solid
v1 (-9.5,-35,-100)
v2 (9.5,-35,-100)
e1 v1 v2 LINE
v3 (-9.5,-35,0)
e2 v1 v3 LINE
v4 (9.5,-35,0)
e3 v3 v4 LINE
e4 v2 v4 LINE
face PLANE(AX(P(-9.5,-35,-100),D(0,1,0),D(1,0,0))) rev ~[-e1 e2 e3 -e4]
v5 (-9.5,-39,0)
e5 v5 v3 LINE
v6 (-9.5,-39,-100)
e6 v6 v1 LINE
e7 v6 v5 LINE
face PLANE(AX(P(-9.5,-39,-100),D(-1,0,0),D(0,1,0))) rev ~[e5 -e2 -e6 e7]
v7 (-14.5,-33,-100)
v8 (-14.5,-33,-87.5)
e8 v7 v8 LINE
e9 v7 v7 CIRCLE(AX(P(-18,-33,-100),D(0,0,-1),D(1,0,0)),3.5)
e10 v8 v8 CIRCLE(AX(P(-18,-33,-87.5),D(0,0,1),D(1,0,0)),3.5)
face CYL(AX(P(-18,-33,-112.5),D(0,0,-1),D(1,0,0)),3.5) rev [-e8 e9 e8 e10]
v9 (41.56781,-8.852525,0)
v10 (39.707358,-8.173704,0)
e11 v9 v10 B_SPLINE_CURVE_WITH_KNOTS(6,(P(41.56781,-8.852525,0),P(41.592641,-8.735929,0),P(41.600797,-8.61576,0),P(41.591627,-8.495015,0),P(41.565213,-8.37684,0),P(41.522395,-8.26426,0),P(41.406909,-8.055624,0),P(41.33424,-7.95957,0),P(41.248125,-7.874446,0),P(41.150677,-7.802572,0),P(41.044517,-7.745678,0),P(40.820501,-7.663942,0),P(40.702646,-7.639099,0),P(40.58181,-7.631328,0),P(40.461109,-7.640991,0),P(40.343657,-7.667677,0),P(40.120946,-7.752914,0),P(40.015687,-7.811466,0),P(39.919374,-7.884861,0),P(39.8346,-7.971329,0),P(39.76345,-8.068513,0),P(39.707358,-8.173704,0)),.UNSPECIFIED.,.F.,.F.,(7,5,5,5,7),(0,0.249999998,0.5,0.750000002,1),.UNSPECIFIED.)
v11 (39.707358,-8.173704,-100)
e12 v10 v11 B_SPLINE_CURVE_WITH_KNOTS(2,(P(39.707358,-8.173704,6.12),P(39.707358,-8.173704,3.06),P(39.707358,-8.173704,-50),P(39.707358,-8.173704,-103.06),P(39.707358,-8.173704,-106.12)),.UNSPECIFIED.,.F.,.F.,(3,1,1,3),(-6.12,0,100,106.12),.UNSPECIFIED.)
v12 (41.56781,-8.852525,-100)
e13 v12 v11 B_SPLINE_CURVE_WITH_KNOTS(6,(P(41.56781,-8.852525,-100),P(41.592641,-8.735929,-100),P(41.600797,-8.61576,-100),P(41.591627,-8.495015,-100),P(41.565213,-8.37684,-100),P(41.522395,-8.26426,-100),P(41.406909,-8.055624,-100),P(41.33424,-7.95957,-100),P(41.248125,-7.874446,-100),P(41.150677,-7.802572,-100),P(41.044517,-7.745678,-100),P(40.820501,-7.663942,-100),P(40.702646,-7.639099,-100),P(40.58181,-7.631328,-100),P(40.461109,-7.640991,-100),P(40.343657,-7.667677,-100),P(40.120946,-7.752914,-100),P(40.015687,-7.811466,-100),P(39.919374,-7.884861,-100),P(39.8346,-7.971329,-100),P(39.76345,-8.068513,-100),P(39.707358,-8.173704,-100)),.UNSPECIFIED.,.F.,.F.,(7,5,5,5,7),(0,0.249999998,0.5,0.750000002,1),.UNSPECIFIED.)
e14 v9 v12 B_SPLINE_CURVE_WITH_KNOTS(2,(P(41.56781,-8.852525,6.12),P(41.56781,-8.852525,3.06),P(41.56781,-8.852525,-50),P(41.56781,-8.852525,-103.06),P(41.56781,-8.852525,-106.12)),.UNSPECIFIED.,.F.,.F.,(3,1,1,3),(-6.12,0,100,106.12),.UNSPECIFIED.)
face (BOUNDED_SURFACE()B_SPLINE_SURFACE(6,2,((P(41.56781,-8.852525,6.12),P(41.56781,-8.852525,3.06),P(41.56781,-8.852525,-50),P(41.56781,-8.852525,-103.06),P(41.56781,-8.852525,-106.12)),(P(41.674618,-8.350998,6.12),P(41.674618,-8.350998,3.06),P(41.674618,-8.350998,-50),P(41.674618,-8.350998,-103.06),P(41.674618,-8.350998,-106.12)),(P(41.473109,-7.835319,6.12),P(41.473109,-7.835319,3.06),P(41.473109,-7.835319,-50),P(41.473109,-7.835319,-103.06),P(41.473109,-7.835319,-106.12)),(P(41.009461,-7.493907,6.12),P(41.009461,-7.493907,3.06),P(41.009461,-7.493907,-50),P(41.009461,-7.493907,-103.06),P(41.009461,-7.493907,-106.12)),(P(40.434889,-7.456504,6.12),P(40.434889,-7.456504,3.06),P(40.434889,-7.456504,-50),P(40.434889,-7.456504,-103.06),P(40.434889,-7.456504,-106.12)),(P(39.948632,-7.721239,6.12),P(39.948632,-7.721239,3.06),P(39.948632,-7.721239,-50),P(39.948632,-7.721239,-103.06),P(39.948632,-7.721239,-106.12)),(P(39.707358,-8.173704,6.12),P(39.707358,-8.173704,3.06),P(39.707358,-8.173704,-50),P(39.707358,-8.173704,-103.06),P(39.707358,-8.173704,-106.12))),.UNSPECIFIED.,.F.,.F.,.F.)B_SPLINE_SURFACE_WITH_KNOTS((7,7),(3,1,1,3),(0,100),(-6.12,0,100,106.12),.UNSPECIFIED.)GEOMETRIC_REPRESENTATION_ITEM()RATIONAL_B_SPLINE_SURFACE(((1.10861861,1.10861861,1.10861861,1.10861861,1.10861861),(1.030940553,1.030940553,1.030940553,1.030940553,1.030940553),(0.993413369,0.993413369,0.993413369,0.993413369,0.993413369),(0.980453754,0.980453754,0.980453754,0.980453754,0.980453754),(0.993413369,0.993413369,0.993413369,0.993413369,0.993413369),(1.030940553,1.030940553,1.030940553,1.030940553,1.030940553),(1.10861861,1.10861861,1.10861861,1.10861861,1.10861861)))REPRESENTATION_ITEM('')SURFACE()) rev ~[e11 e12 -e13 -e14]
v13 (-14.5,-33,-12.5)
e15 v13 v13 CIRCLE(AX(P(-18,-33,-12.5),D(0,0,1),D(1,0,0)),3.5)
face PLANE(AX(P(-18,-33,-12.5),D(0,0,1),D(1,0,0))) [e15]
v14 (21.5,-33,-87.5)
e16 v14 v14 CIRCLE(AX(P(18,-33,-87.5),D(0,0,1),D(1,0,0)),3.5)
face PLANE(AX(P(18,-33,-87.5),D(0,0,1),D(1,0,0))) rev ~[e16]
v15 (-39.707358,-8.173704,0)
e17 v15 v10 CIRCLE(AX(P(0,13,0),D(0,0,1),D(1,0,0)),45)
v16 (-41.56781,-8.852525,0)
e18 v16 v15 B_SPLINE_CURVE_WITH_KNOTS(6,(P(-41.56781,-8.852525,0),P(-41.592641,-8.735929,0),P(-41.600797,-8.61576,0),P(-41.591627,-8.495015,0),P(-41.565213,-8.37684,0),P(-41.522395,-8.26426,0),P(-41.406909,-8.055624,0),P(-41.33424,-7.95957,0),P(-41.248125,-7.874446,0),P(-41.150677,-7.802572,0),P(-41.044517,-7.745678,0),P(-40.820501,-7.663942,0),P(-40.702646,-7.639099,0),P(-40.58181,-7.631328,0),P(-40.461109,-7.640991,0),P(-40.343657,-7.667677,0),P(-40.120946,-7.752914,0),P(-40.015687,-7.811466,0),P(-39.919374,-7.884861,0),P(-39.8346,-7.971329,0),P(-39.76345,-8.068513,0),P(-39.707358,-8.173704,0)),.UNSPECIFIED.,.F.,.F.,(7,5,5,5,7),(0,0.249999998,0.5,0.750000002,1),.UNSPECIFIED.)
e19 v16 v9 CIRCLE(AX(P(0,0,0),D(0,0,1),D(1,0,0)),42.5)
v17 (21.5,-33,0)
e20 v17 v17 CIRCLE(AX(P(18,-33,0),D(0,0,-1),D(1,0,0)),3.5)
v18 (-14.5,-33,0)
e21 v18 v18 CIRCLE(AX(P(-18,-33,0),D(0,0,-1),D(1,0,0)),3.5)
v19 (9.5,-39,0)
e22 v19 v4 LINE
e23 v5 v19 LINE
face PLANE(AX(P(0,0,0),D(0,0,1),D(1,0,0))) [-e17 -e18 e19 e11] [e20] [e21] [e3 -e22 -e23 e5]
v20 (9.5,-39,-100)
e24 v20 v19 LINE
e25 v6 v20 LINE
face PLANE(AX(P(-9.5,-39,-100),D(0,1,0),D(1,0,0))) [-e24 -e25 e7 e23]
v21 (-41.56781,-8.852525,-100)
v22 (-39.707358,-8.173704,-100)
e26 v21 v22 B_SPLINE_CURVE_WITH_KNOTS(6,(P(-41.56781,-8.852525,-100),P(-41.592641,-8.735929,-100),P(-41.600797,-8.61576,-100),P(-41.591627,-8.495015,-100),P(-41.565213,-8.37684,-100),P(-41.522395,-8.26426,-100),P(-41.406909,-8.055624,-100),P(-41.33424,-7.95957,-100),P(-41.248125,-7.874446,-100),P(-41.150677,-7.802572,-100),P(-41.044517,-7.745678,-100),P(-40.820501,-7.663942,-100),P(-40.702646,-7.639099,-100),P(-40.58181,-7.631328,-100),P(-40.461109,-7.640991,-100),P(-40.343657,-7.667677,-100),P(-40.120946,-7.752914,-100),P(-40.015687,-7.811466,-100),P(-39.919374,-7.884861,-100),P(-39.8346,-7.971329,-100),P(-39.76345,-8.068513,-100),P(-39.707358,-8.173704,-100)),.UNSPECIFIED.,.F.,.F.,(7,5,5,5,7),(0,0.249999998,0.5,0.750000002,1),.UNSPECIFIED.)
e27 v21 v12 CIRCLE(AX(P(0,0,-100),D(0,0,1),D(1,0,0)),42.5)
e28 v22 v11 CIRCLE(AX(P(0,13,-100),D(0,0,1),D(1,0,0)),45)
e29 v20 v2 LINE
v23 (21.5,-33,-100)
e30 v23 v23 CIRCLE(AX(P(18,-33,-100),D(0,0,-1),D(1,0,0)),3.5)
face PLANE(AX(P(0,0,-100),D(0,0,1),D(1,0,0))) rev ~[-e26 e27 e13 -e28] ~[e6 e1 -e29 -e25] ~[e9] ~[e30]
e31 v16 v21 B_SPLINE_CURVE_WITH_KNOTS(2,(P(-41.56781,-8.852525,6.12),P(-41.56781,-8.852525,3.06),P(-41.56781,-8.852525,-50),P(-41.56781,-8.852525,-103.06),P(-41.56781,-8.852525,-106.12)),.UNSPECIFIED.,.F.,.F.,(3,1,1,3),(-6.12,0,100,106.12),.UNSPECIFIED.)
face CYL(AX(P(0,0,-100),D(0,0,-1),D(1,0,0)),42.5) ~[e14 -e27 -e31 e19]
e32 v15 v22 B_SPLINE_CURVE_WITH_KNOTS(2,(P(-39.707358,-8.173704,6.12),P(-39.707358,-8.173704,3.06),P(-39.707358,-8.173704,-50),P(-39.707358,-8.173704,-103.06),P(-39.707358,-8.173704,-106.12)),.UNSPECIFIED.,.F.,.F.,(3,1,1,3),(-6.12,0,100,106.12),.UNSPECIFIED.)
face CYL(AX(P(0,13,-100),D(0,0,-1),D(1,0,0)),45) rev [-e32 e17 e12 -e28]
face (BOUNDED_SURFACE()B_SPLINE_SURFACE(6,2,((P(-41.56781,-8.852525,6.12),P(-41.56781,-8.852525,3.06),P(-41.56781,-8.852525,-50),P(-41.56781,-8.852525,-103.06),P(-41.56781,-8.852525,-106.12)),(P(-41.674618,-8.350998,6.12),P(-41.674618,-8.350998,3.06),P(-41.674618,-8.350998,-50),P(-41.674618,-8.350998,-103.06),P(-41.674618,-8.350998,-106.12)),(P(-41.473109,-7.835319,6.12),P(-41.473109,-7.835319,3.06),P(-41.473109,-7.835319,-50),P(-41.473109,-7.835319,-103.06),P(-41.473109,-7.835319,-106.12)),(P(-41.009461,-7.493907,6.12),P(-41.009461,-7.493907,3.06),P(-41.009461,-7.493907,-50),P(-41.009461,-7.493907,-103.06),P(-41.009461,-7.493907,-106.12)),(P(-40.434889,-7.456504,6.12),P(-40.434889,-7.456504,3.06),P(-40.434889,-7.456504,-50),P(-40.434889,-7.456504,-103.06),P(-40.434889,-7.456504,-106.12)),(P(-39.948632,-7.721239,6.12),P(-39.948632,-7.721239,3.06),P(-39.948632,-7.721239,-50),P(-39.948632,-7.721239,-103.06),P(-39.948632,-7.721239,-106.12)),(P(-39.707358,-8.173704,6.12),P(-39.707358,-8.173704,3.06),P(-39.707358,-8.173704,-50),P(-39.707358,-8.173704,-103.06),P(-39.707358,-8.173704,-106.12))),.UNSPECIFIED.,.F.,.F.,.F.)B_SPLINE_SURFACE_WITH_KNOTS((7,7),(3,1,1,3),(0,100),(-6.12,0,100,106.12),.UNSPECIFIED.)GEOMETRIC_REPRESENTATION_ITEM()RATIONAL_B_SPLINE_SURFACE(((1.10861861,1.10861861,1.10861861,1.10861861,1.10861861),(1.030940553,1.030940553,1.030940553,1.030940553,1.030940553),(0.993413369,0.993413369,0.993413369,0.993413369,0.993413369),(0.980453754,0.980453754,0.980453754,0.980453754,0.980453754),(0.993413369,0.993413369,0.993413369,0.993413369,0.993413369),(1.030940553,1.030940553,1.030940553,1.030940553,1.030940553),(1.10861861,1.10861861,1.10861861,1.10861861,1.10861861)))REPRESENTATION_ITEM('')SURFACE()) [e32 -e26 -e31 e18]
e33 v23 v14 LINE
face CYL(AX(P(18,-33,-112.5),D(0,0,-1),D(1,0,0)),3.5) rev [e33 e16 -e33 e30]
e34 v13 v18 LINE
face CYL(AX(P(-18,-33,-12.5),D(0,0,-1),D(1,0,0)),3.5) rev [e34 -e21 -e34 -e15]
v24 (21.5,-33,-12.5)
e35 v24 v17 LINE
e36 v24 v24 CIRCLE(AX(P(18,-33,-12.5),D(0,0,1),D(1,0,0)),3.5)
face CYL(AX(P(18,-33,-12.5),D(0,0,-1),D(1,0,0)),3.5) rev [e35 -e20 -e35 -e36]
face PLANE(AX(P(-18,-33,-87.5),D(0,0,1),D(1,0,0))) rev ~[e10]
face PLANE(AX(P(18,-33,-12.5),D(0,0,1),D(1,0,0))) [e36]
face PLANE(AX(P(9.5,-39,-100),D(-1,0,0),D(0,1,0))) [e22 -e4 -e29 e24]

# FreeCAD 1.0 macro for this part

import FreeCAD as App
import Part
import Sketcher


def edges_at(feature, points):
    """Names of the edges that pass closest to the given points."""
    edges = feature.Shape.Edges
    near = lambda p: min(range(len(edges)), key=lambda i: edges[i].distToShape(Part.Vertex(*p))[0])
    return sorted({f"Edge{near(p) + 1}" for p in points})

doc = App.newDocument("Part")
body = doc.addObject("PartDesign::Body", "Body")

# Sketch on XY plane
sketch1 = body.newObject("Sketcher::SketchObject", "Sketch")
sketch1.AttachmentSupport = (doc.getObject("XY_Plane"), [""])
sketch1.MapMode = "FlatFace"
sketch1.AttachmentOffset = App.Placement(App.Vector(0, 0, -112.5), App.Rotation())
sketch1.addGeometry(Part.Circle(App.Vector(18, -33, 0), App.Vector(0, 0, 1), 3.5), False)
sketch1.addConstraint([
    Sketcher.Constraint("Diameter", 0, 7.0),
    Sketcher.Constraint("DistanceX", -1, 1, 0, 3, 18.0),
    Sketcher.Constraint("DistanceY", 0, 3, -1, 1, 33.0),
])
pad1 = body.newObject("PartDesign::Pad", "Pad")
pad1.Profile = sketch1
pad1.Length = 25
body2 = doc.addObject("PartDesign::Body", "Body001")

# Sketch on XY plane
sketch2 = body2.newObject("Sketcher::SketchObject", "Sketch001")
sketch2.AttachmentSupport = (doc.getObject("XY_Plane001"), [""])
sketch2.MapMode = "FlatFace"
sketch2.AttachmentOffset = App.Placement(App.Vector(0, 0, -112.5), App.Rotation())
sketch2.addGeometry(Part.Circle(App.Vector(-18, -33, 0), App.Vector(0, 0, 1), 3.5), False)
sketch2.addConstraint([
    Sketcher.Constraint("Diameter", 0, 7.0),
    Sketcher.Constraint("DistanceX", 0, 3, -1, 1, 18.0),
    Sketcher.Constraint("DistanceY", 0, 3, -1, 1, 33.0),
])
pad2 = body2.newObject("PartDesign::Pad", "Pad001")
pad2.Profile = sketch2
pad2.Length = 25
body3 = doc.addObject("PartDesign::Body", "Body002")

# Sketch on XY plane
sketch3 = body3.newObject("Sketcher::SketchObject", "Sketch002")
sketch3.AttachmentSupport = (doc.getObject("XY_Plane002"), [""])
sketch3.MapMode = "FlatFace"
sketch3.AttachmentOffset = App.Placement(App.Vector(0, 0, -12.5), App.Rotation())
sketch3.addGeometry(Part.Circle(App.Vector(18, -33, 0), App.Vector(0, 0, 1), 3.5), False)
sketch3.addConstraint([
    Sketcher.Constraint("Diameter", 0, 7.0),
    Sketcher.Constraint("DistanceX", -1, 1, 0, 3, 18.0),
    Sketcher.Constraint("DistanceY", 0, 3, -1, 1, 33.0),
])
pad3 = body3.newObject("PartDesign::Pad", "Pad002")
pad3.Profile = sketch3
pad3.Length = 25
body4 = doc.addObject("PartDesign::Body", "Body003")

# Sketch on XY plane
sketch4 = body4.newObject("Sketcher::SketchObject", "Sketch003")
sketch4.AttachmentSupport = (doc.getObject("XY_Plane003"), [""])
sketch4.MapMode = "FlatFace"
sketch4.AttachmentOffset = App.Placement(App.Vector(0, 0, -12.5), App.Rotation())
sketch4.addGeometry(Part.Circle(App.Vector(-18, -33, 0), App.Vector(0, 0, 1), 3.5), False)
sketch4.addConstraint([
    Sketcher.Constraint("Diameter", 0, 7.0),
    Sketcher.Constraint("DistanceX", 0, 3, -1, 1, 18.0),
    Sketcher.Constraint("DistanceY", 0, 3, -1, 1, 33.0),
])
pad4 = body4.newObject("PartDesign::Pad", "Pad003")
pad4.Profile = sketch4
pad4.Length = 25
body5 = doc.addObject("PartDesign::Body", "Body004")

# Sketch on XY plane
sketch5 = body5.newObject("Sketcher::SketchObject", "Sketch004")
sketch5.AttachmentSupport = (doc.getObject("XY_Plane004"), [""])
sketch5.MapMode = "FlatFace"
sketch5.addGeometry([
    Part.LineSegment(App.Vector(-9.5, -35, 0), App.Vector(-9.5, -39, 0)),
    Part.LineSegment(App.Vector(-9.5, -39, 0), App.Vector(9.5, -39, 0)),
    Part.LineSegment(App.Vector(9.5, -39, 0), App.Vector(9.5, -35, 0)),
    Part.LineSegment(App.Vector(9.5, -35, 0), App.Vector(-9.5, -35, 0)),
], False)
sketch5.addConstraint([
    Sketcher.Constraint("Coincident", 0, 2, 1, 1),
    Sketcher.Constraint("Coincident", 1, 2, 2, 1),
    Sketcher.Constraint("Coincident", 2, 2, 3, 1),
    Sketcher.Constraint("Coincident", 3, 2, 0, 1),
    Sketcher.Constraint("Vertical", 0),
    Sketcher.Constraint("Horizontal", 1),
    Sketcher.Constraint("Vertical", 2),
    Sketcher.Constraint("Horizontal", 3),
    Sketcher.Constraint("DistanceX", 1, 1, 1, 2, 19.0),
    Sketcher.Constraint("DistanceY", 0, 2, 0, 1, 4.0),
    Sketcher.Constraint("DistanceY", 0, 2, -1, 1, 39.0),
    Sketcher.Constraint("DistanceX", 0, 2, -1, 1, 9.5),
])
pad5 = body5.newObject("PartDesign::Pad", "Pad004")
pad5.Profile = sketch5
pad5.Length = 100
body6 = doc.addObject("PartDesign::Body", "Body005")

# Sketch on XY plane
sketch6 = body6.newObject("Sketcher::SketchObject", "Sketch005")
sketch6.AttachmentSupport = (doc.getObject("XY_Plane005"), [""])
sketch6.MapMode = "FlatFace"
sketch6.addGeometry(Part.Circle(App.Vector(0, 13, 0), App.Vector(0, 0, 1), 45), False)
sketch6.addConstraint([
    Sketcher.Constraint("PointOnObject", 0, 3, -2),
    Sketcher.Constraint("Diameter", 0, 90.0),
    Sketcher.Constraint("DistanceY", -1, 1, 0, 3, 13.0),
])
pad6 = body6.newObject("PartDesign::Pad", "Pad005")
pad6.Profile = sketch6
pad6.Length = 100
body7 = doc.addObject("PartDesign::Body", "Body006")

# Sketch on XY plane
sketch7 = body7.newObject("Sketcher::SketchObject", "Sketch006")
sketch7.AttachmentSupport = (doc.getObject("XY_Plane006"), [""])
sketch7.MapMode = "FlatFace"
sketch7.addGeometry(Part.Circle(App.Vector(0, 0, 0), App.Vector(0, 0, 1), 42.5), False)
sketch7.addConstraint([
    Sketcher.Constraint("Coincident", 0, 3, -1, 1),
    Sketcher.Constraint("Diameter", 0, 85.0),
])
pad7 = body7.newObject("PartDesign::Pad", "Pad006")
pad7.Profile = sketch7
pad7.Length = 100
doc.recompute()

boolean = body7.newObject("PartDesign::Boolean", "Boolean")
boolean.Type = "Cut"
boolean.addObjects([body6])
doc.recompute()

fillet = body7.newObject("PartDesign::Fillet", "Fillet")
fillet.Base = (boolean, edges_at(boolean, [(-42.457, -1.913, 50)]))
fillet.Radius = 1
doc.recompute()

fillet2 = body7.newObject("PartDesign::Fillet", "Fillet001")
fillet2.Base = (fillet, edges_at(fillet, [(42.457, -1.913, 50)]))
fillet2.Radius = 1
doc.recompute()

boolean2 = body7.newObject("PartDesign::Boolean", "Boolean001")
boolean2.Type = "Cut"
boolean2.addObjects([body5])
body8 = doc.addObject("PartDesign::Body", "Body007")
doc.recompute()

body7.Placement = App.Placement(App.Vector(0, 0, -100), App.Rotation(App.Vector(0, 0, 1), 0))
boolean3 = body8.newObject("PartDesign::Boolean", "Boolean002")
boolean3.Type = "Fuse"
boolean3.addObjects([body7])
doc.recompute()

boolean4 = body8.newObject("PartDesign::Boolean", "Boolean003")
boolean4.Type = "Cut"
boolean4.addObjects([body4])
doc.recompute()

boolean5 = body8.newObject("PartDesign::Boolean", "Boolean004")
boolean5.Type = "Cut"
boolean5.addObjects([body3])
doc.recompute()

boolean6 = body8.newObject("PartDesign::Boolean", "Boolean005")
boolean6.Type = "Cut"
boolean6.addObjects([body2])
doc.recompute()

boolean7 = body8.newObject("PartDesign::Boolean", "Boolean006")
boolean7.Type = "Cut"
boolean7.addObjects([body])

doc.recompute()
